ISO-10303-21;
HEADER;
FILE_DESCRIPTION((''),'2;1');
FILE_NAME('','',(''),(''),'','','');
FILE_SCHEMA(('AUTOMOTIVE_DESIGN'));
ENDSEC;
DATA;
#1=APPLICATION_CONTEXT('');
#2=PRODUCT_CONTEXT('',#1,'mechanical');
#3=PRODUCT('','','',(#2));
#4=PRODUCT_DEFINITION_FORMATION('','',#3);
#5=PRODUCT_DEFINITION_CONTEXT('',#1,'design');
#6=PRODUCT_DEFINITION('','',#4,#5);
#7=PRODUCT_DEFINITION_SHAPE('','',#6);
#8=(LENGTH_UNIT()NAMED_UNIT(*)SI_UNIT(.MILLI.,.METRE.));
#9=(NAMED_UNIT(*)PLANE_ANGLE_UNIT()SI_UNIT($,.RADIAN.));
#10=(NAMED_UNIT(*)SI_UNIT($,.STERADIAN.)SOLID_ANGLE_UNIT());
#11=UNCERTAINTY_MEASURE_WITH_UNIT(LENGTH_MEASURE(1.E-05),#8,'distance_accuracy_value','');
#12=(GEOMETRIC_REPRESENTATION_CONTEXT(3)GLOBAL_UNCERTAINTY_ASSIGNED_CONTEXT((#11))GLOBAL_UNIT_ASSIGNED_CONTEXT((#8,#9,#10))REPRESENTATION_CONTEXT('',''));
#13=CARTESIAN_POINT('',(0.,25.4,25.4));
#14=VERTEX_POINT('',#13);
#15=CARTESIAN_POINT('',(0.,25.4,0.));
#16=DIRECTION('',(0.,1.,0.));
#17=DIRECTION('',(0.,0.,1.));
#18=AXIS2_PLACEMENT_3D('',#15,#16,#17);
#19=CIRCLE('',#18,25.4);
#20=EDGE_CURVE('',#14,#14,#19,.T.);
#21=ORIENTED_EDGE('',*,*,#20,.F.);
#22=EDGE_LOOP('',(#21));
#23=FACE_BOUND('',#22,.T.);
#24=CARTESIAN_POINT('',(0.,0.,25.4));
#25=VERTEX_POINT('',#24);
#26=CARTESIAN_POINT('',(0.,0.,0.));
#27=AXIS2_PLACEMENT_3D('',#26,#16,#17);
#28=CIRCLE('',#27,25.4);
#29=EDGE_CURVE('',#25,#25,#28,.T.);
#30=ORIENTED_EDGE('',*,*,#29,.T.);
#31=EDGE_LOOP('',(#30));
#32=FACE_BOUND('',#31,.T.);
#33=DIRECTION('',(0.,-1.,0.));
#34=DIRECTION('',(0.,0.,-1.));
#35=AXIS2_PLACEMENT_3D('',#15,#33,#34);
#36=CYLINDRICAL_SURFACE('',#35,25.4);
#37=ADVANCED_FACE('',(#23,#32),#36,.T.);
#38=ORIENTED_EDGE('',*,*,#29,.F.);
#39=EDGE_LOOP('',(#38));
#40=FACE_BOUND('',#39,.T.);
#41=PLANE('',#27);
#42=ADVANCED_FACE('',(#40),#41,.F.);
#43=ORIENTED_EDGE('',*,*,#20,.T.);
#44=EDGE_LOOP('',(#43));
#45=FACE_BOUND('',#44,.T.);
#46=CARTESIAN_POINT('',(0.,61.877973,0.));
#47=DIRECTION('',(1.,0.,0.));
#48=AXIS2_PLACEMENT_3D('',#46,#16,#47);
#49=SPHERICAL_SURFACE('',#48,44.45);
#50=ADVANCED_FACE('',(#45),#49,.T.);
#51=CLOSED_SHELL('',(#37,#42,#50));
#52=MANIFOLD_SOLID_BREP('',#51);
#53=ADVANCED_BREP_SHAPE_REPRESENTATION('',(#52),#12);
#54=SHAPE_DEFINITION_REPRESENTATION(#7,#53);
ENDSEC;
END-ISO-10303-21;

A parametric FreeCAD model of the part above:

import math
import FreeCAD as App
import Part
import Sketcher
Q = App.Units.Quantity

doc = App.newDocument("Part")
body = doc.addObject("PartDesign::Body", "Body")

# Sketch on XZ plane
sketch1 = body.newObject("Sketcher::SketchObject", "Sketch")
sketch1.AttachmentSupport = (doc.getObject("XZ_Plane"), [""])
sketch1.MapMode = "FlatFace"
sketch1.addGeometry(Part.Circle(App.Vector(0, 0, 0), App.Vector(0, 0, 1), 25), False)
sketch1.addConstraint([
    Sketcher.Constraint("Coincident", 0, 3, -1, 1),
    Sketcher.Constraint("Diameter", 0, Q("2 in")),
])
pad1 = body.newObject("PartDesign::Pad", "Pad")
pad1.Profile = sketch1
pad1.Length = Q("1 in")
pad1.Reversed = True

# Sketch on XY plane
sketch2 = body.newObject("Sketcher::SketchObject", "Sketch001")
sketch2.AttachmentSupport = (doc.getObject("XY_Plane"), [""])
sketch2.MapMode = "FlatFace"
sketch2.addGeometry([
    Part.ArcOfCircle(Part.Circle(App.Vector(0, 62, 0), App.Vector(0, 0, 1), 44), math.radians(-90), math.radians(-55)),
    Part.ArcOfCircle(Part.Circle(App.Vector(0, 62, 0), App.Vector(0, 0, 1), 44), math.radians(-55), math.radians(0)),
    Part.ArcOfCircle(Part.Circle(App.Vector(0, 62, 0), App.Vector(0, 0, 1), 44), math.radians(0), math.radians(90)),
    Part.LineSegment(App.Vector(0, 106, 0), App.Vector(0, 17, 0)),
], False)
sketch2.addConstraint([
    Sketcher.Constraint("Tangent", 0, 2, 1, 1),
    Sketcher.Constraint("Tangent", 1, 2, 2, 1),
    Sketcher.Constraint("Coincident", 2, 2, 3, 1),
    Sketcher.Constraint("Coincident", 3, 2, 0, 1),
    Sketcher.Constraint("Vertical", 3),
    Sketcher.Constraint("Coincident", 2, 3, 0, 3),
    Sketcher.Constraint("PointOnObject", 0, 3, -2),
    Sketcher.Constraint("PointOnObject", 2, 2, -2),
    Sketcher.Constraint("Horizontal", 2, 3, 1, 2),
    Sketcher.Constraint("Radius", 0, Q("1.75 in")),
    Sketcher.Constraint("DistanceX", -1, 1, 0, 2, Q("1 in")),
    Sketcher.Constraint("DistanceY", -1, 1, 0, 2, Q("1 in")),
])
revolution = body.newObject("PartDesign::Revolution", "Revolution")
revolution.Profile = sketch2
revolution.ReferenceAxis = (sketch2, ["V_Axis"])
revolution.Angle = 360

doc.recompute()
